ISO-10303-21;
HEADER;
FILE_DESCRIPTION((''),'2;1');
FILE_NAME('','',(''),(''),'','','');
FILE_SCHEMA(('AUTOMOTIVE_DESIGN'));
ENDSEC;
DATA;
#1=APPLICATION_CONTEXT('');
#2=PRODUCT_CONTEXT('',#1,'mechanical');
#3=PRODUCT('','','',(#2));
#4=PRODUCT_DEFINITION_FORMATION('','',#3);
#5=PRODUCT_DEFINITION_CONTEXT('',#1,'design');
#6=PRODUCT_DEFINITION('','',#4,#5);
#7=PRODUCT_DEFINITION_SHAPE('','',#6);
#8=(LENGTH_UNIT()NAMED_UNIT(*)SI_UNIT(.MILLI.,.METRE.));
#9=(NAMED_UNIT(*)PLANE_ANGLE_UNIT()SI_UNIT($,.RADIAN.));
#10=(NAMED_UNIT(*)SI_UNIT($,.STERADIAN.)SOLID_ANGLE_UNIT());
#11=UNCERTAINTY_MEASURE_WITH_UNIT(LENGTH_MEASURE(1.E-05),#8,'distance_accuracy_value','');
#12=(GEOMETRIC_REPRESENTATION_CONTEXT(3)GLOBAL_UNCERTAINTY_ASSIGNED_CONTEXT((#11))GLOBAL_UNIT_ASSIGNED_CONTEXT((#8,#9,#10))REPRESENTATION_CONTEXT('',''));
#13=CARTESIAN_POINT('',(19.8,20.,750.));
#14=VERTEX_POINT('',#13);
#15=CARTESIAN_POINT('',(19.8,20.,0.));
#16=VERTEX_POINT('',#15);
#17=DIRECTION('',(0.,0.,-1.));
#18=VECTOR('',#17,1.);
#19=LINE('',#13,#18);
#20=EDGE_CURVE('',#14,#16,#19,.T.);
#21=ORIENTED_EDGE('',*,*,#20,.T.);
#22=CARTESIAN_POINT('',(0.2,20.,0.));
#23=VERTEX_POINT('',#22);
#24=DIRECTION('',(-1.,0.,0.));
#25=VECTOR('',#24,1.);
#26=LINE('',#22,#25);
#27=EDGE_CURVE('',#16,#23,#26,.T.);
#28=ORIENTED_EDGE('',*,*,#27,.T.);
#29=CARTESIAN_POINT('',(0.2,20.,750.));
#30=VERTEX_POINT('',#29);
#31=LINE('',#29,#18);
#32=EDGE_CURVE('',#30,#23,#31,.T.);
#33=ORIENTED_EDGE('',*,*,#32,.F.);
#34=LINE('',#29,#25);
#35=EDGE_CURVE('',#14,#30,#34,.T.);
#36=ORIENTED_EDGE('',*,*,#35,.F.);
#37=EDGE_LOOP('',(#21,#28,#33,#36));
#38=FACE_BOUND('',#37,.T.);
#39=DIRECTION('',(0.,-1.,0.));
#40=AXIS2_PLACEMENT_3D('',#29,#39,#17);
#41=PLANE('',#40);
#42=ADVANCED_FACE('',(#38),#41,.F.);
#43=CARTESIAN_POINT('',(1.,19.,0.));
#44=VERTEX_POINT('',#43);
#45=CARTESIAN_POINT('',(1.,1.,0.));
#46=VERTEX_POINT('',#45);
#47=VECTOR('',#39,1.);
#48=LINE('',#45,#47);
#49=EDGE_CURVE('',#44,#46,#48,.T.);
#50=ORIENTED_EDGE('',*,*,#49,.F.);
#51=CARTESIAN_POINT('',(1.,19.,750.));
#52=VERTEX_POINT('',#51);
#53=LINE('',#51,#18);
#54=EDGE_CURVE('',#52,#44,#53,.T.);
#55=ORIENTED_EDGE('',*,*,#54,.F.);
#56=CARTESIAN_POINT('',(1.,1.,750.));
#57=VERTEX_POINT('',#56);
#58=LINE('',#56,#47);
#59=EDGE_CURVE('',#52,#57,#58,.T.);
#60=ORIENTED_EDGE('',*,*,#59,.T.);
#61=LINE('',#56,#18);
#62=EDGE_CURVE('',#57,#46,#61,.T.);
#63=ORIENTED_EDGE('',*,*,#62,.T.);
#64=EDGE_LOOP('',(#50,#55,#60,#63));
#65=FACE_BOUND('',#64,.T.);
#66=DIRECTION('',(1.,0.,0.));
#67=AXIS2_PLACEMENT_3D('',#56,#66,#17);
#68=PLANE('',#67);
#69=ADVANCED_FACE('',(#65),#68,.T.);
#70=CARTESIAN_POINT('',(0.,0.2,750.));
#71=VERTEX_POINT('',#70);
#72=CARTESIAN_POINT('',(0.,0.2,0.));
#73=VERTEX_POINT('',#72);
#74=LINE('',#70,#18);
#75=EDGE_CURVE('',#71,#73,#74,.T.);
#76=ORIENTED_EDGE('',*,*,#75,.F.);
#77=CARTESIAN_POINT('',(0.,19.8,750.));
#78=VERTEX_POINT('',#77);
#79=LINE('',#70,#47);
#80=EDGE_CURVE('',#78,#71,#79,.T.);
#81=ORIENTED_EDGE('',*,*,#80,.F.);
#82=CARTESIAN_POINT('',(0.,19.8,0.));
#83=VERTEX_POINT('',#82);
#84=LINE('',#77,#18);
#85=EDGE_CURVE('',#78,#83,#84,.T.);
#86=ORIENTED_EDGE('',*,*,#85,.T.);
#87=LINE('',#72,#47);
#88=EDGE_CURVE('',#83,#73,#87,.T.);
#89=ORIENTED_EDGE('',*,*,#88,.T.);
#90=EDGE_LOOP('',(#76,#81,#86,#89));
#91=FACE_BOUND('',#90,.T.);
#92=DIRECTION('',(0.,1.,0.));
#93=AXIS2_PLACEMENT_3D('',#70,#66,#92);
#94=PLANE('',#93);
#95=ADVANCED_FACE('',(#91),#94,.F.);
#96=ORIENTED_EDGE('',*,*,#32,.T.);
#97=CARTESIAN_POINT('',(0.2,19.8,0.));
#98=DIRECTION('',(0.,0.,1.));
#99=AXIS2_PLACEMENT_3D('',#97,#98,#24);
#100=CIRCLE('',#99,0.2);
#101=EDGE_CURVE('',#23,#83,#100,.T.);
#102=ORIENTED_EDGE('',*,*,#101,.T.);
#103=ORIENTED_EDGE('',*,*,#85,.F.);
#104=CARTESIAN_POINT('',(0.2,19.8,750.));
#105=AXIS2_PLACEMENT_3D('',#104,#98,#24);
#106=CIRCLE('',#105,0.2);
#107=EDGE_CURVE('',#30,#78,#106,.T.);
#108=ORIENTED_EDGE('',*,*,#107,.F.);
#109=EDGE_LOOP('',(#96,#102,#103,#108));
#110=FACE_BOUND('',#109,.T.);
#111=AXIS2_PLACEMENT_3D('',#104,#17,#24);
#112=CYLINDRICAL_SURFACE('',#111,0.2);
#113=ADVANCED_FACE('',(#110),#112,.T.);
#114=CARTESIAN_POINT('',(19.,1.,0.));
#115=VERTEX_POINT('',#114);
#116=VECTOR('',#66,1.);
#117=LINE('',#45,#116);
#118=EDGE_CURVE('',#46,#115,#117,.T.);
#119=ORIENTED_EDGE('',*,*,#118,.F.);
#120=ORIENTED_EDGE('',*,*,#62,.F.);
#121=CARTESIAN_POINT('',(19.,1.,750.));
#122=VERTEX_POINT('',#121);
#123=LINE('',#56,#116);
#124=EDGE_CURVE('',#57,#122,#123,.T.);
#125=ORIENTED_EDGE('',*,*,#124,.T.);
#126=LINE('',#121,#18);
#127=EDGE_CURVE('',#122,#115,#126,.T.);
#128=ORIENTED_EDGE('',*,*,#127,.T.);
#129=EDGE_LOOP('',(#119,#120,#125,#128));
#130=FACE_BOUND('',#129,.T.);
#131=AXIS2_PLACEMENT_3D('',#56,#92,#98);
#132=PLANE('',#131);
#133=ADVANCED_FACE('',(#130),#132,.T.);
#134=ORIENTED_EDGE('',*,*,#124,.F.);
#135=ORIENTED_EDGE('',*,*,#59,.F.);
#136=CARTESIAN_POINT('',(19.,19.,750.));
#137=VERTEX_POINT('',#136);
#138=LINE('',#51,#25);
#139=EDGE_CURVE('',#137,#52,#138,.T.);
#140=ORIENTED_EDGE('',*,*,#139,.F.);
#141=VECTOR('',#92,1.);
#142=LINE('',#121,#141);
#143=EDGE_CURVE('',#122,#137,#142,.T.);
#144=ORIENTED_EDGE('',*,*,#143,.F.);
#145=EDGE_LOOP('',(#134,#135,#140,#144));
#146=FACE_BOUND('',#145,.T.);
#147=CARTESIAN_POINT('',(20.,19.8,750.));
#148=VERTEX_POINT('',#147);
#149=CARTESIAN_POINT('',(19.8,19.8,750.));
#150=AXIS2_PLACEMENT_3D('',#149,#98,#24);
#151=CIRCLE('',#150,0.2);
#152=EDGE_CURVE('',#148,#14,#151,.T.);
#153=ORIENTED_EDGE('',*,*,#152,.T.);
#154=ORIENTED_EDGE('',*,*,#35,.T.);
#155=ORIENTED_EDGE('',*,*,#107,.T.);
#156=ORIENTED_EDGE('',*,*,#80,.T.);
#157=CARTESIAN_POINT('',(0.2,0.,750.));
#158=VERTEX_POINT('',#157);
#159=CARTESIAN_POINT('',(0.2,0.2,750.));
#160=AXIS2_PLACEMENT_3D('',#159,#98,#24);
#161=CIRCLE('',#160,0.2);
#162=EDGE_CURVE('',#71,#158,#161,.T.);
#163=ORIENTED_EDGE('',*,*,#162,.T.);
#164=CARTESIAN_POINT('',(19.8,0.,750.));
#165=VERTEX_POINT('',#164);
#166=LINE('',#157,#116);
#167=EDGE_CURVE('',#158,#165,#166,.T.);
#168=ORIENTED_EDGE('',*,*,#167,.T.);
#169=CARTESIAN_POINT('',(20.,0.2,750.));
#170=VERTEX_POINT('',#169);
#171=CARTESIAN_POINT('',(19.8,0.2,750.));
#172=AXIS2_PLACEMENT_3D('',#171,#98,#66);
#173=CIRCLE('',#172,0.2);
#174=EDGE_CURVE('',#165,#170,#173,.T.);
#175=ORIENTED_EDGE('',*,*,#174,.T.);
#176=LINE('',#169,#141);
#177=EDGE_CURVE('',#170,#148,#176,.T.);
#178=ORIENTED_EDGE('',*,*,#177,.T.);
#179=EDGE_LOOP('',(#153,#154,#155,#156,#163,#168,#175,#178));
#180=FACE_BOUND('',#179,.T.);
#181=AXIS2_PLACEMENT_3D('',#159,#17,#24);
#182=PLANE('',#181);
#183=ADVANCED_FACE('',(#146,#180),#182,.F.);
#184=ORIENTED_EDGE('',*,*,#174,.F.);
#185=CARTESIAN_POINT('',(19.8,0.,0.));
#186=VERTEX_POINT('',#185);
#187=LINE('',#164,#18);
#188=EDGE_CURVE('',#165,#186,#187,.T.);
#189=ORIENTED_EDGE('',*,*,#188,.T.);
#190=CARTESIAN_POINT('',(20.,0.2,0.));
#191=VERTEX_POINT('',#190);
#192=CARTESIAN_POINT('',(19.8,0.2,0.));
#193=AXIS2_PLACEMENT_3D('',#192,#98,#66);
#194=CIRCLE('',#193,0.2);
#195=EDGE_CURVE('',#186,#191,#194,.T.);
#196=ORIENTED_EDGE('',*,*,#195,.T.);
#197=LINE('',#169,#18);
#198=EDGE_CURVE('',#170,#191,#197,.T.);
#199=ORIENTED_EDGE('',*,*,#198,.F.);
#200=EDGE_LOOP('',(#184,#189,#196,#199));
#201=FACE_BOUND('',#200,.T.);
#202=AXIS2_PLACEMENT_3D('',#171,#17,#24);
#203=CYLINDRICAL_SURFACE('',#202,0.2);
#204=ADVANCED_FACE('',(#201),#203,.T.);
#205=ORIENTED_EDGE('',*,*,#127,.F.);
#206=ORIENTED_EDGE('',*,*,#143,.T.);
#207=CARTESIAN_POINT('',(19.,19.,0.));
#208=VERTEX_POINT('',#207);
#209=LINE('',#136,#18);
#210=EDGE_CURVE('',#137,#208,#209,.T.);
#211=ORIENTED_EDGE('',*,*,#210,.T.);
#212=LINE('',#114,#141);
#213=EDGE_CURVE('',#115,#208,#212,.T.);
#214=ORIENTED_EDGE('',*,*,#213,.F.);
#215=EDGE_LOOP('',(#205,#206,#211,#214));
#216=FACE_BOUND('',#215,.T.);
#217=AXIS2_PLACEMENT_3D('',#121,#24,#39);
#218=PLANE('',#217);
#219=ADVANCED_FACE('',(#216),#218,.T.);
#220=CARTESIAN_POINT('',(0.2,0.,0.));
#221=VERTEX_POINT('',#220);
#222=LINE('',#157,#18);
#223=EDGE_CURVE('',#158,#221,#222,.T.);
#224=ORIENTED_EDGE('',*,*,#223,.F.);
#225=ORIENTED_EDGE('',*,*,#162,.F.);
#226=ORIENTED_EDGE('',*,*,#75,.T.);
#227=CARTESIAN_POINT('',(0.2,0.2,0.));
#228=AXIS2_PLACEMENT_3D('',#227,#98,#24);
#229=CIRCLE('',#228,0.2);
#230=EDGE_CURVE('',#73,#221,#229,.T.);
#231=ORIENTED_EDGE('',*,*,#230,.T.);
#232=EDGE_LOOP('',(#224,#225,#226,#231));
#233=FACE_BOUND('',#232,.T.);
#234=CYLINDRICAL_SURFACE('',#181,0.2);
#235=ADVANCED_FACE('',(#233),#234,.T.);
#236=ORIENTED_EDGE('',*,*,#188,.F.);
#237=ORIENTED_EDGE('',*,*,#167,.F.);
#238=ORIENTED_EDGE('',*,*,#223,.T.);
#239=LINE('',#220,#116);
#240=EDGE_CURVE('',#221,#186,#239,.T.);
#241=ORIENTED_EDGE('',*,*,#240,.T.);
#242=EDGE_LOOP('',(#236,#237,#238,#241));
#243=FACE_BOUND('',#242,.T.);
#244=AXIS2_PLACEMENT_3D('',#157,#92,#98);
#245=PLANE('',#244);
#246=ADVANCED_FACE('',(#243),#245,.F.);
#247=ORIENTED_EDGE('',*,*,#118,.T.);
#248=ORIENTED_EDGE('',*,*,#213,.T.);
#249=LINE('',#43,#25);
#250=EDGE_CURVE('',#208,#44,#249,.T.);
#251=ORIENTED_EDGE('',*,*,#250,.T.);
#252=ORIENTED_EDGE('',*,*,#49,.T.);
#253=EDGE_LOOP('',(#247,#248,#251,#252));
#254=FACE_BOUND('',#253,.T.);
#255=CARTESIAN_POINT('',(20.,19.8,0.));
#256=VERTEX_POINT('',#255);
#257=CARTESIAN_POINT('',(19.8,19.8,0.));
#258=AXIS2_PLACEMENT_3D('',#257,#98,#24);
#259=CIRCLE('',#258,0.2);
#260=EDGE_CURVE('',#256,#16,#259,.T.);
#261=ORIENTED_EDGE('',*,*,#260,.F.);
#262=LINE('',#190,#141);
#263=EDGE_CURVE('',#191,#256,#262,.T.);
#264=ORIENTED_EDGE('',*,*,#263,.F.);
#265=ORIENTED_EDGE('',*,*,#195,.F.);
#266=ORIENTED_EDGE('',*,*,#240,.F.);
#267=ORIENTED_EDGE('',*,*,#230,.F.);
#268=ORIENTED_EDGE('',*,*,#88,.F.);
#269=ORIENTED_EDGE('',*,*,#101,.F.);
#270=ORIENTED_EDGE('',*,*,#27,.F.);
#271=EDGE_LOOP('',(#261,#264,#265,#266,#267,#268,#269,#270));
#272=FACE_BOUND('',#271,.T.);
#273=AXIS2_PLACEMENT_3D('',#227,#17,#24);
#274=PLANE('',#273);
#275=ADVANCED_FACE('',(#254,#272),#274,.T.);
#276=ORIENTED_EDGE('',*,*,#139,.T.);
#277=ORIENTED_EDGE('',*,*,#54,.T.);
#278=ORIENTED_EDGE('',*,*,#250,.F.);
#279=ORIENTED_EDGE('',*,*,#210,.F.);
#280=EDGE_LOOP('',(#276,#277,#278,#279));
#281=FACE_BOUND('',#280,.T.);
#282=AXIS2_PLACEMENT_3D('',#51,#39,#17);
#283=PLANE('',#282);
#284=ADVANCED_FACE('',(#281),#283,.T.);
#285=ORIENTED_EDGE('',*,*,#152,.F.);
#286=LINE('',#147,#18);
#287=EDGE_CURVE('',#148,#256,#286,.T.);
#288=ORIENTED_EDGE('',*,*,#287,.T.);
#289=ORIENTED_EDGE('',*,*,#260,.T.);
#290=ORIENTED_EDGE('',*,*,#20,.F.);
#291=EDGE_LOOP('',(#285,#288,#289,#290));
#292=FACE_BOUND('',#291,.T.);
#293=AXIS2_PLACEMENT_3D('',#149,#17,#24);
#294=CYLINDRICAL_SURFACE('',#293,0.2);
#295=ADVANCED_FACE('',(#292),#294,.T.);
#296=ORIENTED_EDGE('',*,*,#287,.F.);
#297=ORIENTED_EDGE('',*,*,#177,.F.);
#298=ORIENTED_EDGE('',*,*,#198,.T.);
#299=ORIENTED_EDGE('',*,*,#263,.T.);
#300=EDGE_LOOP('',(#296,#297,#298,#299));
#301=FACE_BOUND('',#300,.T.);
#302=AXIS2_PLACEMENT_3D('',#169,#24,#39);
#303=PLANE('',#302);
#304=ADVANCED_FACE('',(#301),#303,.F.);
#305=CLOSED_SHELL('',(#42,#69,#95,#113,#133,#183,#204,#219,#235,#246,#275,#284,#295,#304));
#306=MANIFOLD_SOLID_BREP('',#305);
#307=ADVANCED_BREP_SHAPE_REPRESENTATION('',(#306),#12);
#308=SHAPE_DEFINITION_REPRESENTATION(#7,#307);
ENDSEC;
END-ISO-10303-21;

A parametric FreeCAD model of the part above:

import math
import FreeCAD as App
import Part
import Sketcher
Q = App.Units.Quantity

doc = App.newDocument("Part")
body = doc.addObject("PartDesign::Body", "Body")

# Sketch on XY plane
sketch1 = body.newObject("Sketcher::SketchObject", "Sketch")
sketch1.AttachmentSupport = (doc.getObject("XY_Plane"), [""])
sketch1.MapMode = "FlatFace"
sketch1.addGeometry(Part.LineSegment(App.Vector(0.2, 0, 0), App.Vector(19.8, 0, 0)), False)
sketch1.addGeometry(Part.ArcOfCircle(Part.Circle(App.Vector(19.8, 0.2, 0), App.Vector(0, 0, 1), 0.2), math.radians(-90), math.radians(0)), False)
sketch1.addGeometry(Part.LineSegment(App.Vector(20, 0.2, 0), App.Vector(20, 19.8, 0)), False)
sketch1.addGeometry(Part.ArcOfCircle(Part.Circle(App.Vector(19.8, 19.8, 0), App.Vector(0, 0, 1), 0.2), math.radians(0), math.radians(90)), False)
sketch1.addGeometry(Part.LineSegment(App.Vector(19.8, 20, 0), App.Vector(0.2, 20, 0)), False)
sketch1.addGeometry(Part.ArcOfCircle(Part.Circle(App.Vector(0.2, 19.8, 0), App.Vector(0, 0, 1), 0.2), math.radians(90), math.radians(180)), False)
sketch1.addGeometry(Part.LineSegment(App.Vector(0, 19.8, 0), App.Vector(0, 0.2, 0)), False)
sketch1.addGeometry(Part.ArcOfCircle(Part.Circle(App.Vector(0.2, 0.2, 0), App.Vector(0, 0, 1), 0.2), math.radians(-180), math.radians(-90)), False)
sketch1.addGeometry(Part.LineSegment(App.Vector(19, 1, 0), App.Vector(1, 1, 0)), False)
sketch1.addGeometry(Part.LineSegment(App.Vector(1, 1, 0), App.Vector(1, 19, 0)), False)
sketch1.addGeometry(Part.LineSegment(App.Vector(1, 19, 0), App.Vector(19, 19, 0)), False)
sketch1.addGeometry(Part.LineSegment(App.Vector(19, 19, 0), App.Vector(19, 1, 0)), False)
sketch1.addConstraint(Sketcher.Constraint("Tangent", 0, 2, 1, 1))
sketch1.addConstraint(Sketcher.Constraint("Tangent", 1, 2, 2, 1))
sketch1.addConstraint(Sketcher.Constraint("Tangent", 2, 2, 3, 1))
sketch1.addConstraint(Sketcher.Constraint("Tangent", 3, 2, 4, 1))
sketch1.addConstraint(Sketcher.Constraint("Tangent", 4, 2, 5, 1))
sketch1.addConstraint(Sketcher.Constraint("Tangent", 5, 2, 6, 1))
sketch1.addConstraint(Sketcher.Constraint("Tangent", 6, 2, 7, 1))
sketch1.addConstraint(Sketcher.Constraint("Tangent", 7, 2, 0, 1))
sketch1.addConstraint(Sketcher.Constraint("Coincident", 8, 2, 9, 1))
sketch1.addConstraint(Sketcher.Constraint("Coincident", 9, 2, 10, 1))
sketch1.addConstraint(Sketcher.Constraint("Coincident", 10, 2, 11, 1))
sketch1.addConstraint(Sketcher.Constraint("Coincident", 11, 2, 8, 1))
sketch1.addConstraint(Sketcher.Constraint("Horizontal", 0))
sketch1.addConstraint(Sketcher.Constraint("Vertical", 2))
sketch1.addConstraint(Sketcher.Constraint("Horizontal", 4))
sketch1.addConstraint(Sketcher.Constraint("Vertical", 6))
sketch1.addConstraint(Sketcher.Constraint("Horizontal", 8))
sketch1.addConstraint(Sketcher.Constraint("Vertical", 9))
sketch1.addConstraint(Sketcher.Constraint("Horizontal", 10))
sketch1.addConstraint(Sketcher.Constraint("Vertical", 11))
sketch1.addConstraint(Sketcher.Constraint("Equal", 1, 3))
sketch1.addConstraint(Sketcher.Constraint("Equal", 3, 5))
sketch1.addConstraint(Sketcher.Constraint("Equal", 5, 7))
sketch1.addConstraint(Sketcher.Constraint("PointOnObject", 0, 2, -1))
sketch1.addConstraint(Sketcher.Constraint("PointOnObject", 5, 2, -2))
sketch1.addConstraint(Sketcher.Constraint("Equal", 4, 2))
sketch1.addConstraint(Sketcher.Constraint("Equal", 10, 9))
sketch1.addConstraint(Sketcher.Constraint("Radius", 1, Q("0.2 mm")))
sketch1.addConstraint(Sketcher.Constraint("DistanceX", 8, 2, 8, 1, Q("18 mm")))
sketch1.addConstraint(Sketcher.Constraint("DistanceX", 0, 1, 0, 2, Q("19.6 mm")))
sketch1.addConstraint(Sketcher.Constraint("DistanceX", -1, 1, 8, 2, Q("1 mm")))
sketch1.addConstraint(Sketcher.Constraint("DistanceY", -1, 1, 8, 2, Q("1 mm")))
pad1 = body.newObject("PartDesign::Pad", "Pad")
pad1.Profile = sketch1
pad1.Length = 750

doc.recompute()
